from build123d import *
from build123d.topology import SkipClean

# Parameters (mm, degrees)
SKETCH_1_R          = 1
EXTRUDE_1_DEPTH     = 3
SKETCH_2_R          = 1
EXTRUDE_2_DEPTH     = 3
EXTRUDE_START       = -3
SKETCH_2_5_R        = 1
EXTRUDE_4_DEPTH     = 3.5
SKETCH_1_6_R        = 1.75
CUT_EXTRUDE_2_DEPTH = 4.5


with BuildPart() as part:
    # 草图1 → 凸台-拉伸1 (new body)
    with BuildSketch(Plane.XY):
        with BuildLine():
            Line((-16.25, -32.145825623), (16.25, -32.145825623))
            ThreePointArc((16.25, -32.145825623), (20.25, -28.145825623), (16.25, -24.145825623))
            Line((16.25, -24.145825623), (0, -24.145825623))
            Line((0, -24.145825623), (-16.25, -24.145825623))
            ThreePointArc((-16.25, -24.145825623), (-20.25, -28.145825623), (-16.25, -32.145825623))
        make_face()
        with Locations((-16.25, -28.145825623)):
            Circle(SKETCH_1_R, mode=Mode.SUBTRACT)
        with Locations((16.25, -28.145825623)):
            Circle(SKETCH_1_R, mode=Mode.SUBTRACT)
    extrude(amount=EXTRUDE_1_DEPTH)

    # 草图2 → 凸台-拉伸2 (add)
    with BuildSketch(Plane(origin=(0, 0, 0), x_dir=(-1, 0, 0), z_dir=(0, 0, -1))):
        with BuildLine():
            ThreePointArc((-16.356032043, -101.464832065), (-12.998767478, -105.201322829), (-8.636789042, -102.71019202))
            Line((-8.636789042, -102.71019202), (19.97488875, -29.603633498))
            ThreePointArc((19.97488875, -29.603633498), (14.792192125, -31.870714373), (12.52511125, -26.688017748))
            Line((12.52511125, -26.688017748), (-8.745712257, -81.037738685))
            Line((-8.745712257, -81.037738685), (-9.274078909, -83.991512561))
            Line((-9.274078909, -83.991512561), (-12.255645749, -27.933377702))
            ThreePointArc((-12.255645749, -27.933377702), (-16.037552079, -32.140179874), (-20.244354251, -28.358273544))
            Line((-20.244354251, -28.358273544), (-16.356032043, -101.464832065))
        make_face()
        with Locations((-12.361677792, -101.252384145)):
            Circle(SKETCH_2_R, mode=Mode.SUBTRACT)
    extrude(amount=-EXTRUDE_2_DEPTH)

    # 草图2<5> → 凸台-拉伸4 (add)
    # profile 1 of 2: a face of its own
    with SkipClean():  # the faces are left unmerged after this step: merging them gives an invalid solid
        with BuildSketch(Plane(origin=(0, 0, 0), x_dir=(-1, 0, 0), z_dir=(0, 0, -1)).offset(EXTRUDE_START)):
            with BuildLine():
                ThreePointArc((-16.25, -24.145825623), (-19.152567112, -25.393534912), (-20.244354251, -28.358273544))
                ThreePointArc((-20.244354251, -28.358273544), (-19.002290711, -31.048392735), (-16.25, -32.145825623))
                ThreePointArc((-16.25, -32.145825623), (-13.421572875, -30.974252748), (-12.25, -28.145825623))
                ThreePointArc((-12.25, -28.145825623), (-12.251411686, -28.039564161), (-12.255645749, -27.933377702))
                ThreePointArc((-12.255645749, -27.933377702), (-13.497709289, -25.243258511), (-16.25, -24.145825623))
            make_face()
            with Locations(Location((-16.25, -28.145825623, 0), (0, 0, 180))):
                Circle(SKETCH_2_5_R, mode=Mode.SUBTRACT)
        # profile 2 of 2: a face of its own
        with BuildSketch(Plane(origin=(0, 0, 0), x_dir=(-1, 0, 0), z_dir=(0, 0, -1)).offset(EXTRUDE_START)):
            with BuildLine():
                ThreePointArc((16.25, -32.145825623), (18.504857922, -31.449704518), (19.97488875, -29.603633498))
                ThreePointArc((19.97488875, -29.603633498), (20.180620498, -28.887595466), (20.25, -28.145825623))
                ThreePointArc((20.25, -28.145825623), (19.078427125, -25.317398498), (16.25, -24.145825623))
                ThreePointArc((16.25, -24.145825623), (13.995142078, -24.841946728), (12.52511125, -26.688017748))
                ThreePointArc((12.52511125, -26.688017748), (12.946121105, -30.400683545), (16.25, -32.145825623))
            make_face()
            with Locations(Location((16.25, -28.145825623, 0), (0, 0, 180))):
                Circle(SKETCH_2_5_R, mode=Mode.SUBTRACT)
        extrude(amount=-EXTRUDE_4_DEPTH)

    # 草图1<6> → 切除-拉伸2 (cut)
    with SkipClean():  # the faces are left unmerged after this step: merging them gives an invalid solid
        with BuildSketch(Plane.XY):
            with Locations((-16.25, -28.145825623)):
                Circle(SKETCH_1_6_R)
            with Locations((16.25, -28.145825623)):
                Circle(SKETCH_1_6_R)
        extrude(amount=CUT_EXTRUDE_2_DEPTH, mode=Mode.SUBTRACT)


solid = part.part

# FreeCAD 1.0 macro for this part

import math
import FreeCAD as App
import Part
import Sketcher

V = App.Vector

doc = App.newDocument("Part")
body = doc.addObject("PartDesign::Body", "Body")

# Sketch on XY plane
sketch1 = doc.addObject("Sketcher::SketchObject", "Sketch")
body.addObject(sketch1)
sketch1.AttachmentSupport = (doc.XY_Plane, [""])
sketch1.MapMode = "FlatFace"
sketch1.addGeometry([
    Part.LineSegment(V(-16.2, -32.1, 0), V(16.2, -32.1, 0)),  # 0
    Part.ArcOfCircle(Part.Circle(V(16.2, -28.1, 0), V(0, 0, 1), 4), math.radians(-90), math.radians(90)),  # 1
    Part.LineSegment(V(16.2, -24.1, 0), V(-16.2, -24.1, 0)),  # 2
    Part.ArcOfCircle(Part.Circle(V(-16.2, -28.1, 0), V(0, 0, 1), 4), math.radians(90), math.radians(270)),  # 3
    Part.Circle(V(-16.2, -28.1, 0), V(0, 0, 1), 1),  # 4
    Part.Circle(V(16.2, -28.1, 0), V(0, 0, 1), 1),  # 5
], False)
sketch1.addConstraint([
    Sketcher.Constraint("Tangent", 0, 2, 1, 1),
    Sketcher.Constraint("Tangent", 1, 2, 2, 1),
    Sketcher.Constraint("Tangent", 2, 2, 3, 1),
    Sketcher.Constraint("Tangent", 3, 2, 0, 1),
    Sketcher.Constraint("Horizontal", 0),
    Sketcher.Constraint("Horizontal", 2),
    Sketcher.Constraint("Coincident", 4, 3, 3, 3),
    Sketcher.Constraint("Coincident", 5, 3, 1, 3),
    Sketcher.Constraint("Equal", 4, 5),
    Sketcher.Constraint("Diameter", 4, 2.0),
    Sketcher.Constraint("Radius", 1, 4.0),
    Sketcher.Constraint("DistanceX", 0, 1, 0, 2, 32.5),
    Sketcher.Constraint("DistanceX", -1, 1, 1, 3, 16.25),
    Sketcher.Constraint("DistanceY", 1, 3, -1, 1, 28.145826),
])
pad1 = doc.addObject("PartDesign::Pad", "Pad")
body.addObject(pad1)
pad1.Profile = sketch1
pad1.Length = 3

# Sketch on XY plane
sketch2 = doc.addObject("Sketcher::SketchObject", "Sketch001")
body.addObject(sketch2)
sketch2.AttachmentSupport = (doc.XY_Plane, [""])
sketch2.MapMode = "FlatFace"
sketch2.addGeometry([
    Part.ArcOfCircle(Part.Circle(V(12.4, -101.3, 0), V(0, 0, 1), 4), math.radians(-159), math.radians(-3)),  # 0
    Part.LineSegment(V(8.6, -102.7, 0), V(-20, -29.6, 0)),  # 1
    Part.ArcOfCircle(Part.Circle(V(-16.2, -28.1, 0), V(0, 0, 1), 4), math.radians(-159), math.radians(21)),  # 2
    Part.LineSegment(V(-12.5, -26.7, 0), V(8.7, -81, 0)),  # 3
    Part.LineSegment(V(8.7, -81, 0), V(9.3, -84, 0)),  # 4
    Part.LineSegment(V(9.3, -84, 0), V(12.3, -27.9, 0)),  # 5
    Part.ArcOfCircle(Part.Circle(V(16.2, -28.1, 0), V(0, 0, 1), 4), math.radians(177), math.radians(357)),  # 6
    Part.LineSegment(V(20.2, -28.4, 0), V(16.4, -101.5, 0)),  # 7
    Part.Circle(V(12.4, -101.3, 0), V(0, 0, 1), 1),  # 8
], False)
sketch2.addConstraint([
    Sketcher.Constraint("Tangent", 0, 1, 1, 1),
    Sketcher.Constraint("Tangent", 1, 2, 2, 1),
    Sketcher.Constraint("Tangent", 2, 2, 3, 1),
    Sketcher.Constraint("Coincident", 3, 2, 4, 1),
    Sketcher.Constraint("Coincident", 4, 2, 5, 1),
    Sketcher.Constraint("Tangent", 5, 2, 6, 1),
    Sketcher.Constraint("Tangent", 6, 2, 7, 1),
    Sketcher.Constraint("Tangent", 7, 2, 0, 2),
    Sketcher.Constraint("Coincident", 8, 3, 0, 3),
    Sketcher.Constraint("Equal", 0, 2),
    Sketcher.Constraint("Equal", 2, 6),
    Sketcher.Constraint("Symmetric", 2, 3, 6, 3, -2),
    Sketcher.Constraint("Parallel", 1, 3),
    Sketcher.Constraint("Parallel", 5, 7),
    Sketcher.Constraint("Diameter", 8, 2.0),
    Sketcher.Constraint("Radius", 0, 4.0),
    Sketcher.Constraint("DistanceX", 2, 3, 6, 3, 32.5),
    Sketcher.Constraint("DistanceX", 4, 2, 0, 3, 3.087599),
    Sketcher.Constraint("Distance", 1, 78.506032),
    Sketcher.Constraint("Distance", 3, 58.36386),
    Sketcher.Constraint("Distance", 4, 3.000658),
    Sketcher.Constraint("DistanceY", 3, 2, -1, 1, 81.037739),
])
pad2 = doc.addObject("PartDesign::Pad", "Pad001")
body.addObject(pad2)
pad2.Profile = sketch2
pad2.Length = 3

# Sketch on XY plane
sketch3 = doc.addObject("Sketcher::SketchObject", "Sketch002")
body.addObject(sketch3)
sketch3.AttachmentSupport = (doc.XY_Plane, [""])
sketch3.MapMode = "FlatFace"
sketch3.AttachmentOffset = App.Placement(V(0, 0, 3), App.Rotation())
sketch3.addGeometry([
    Part.ArcOfCircle(Part.Circle(V(16.25, -28.15, 0), V(0, 0, 1), 4), math.radians(-3), math.radians(90)),  # 0
    Part.ArcOfCircle(Part.Circle(V(16.25, -28.15, 0), V(0, 0, 1), 4), math.radians(-90), math.radians(-3)),  # 1
    Part.ArcOfCircle(Part.Circle(V(16.25, -28.15, 0), V(0, 0, 1), 4), math.radians(180), math.radians(270)),  # 2
    Part.ArcOfCircle(Part.Circle(V(16.25, -28.15, 0), V(0, 0, 1), 4), math.radians(176.96), math.radians(180)),  # 3
    Part.ArcOfCircle(Part.Circle(V(16.25, -28.15, 0), V(0, 0, 1), 4), math.radians(90), math.radians(177)),  # 4
    Part.Circle(V(16.25, -28.15, 0), V(0, 0, 1), 1),  # 5
    Part.ArcOfCircle(Part.Circle(V(-16.25, -28.15, 0), V(0, 0, 1), 4), math.radians(-159), math.radians(-90)),  # 6
    Part.ArcOfCircle(Part.Circle(V(-16.25, -28.15, 0), V(0, 0, 1), 4), math.radians(-180), math.radians(-159)),  # 7
    Part.ArcOfCircle(Part.Circle(V(-16.25, -28.15, 0), V(0, 0, 1), 4), math.radians(90), math.radians(180)),  # 8
    Part.ArcOfCircle(Part.Circle(V(-16.25, -28.15, 0), V(0, 0, 1), 4), math.radians(21), math.radians(90)),  # 9
    Part.ArcOfCircle(Part.Circle(V(-16.25, -28.15, 0), V(0, 0, 1), 4), math.radians(-90), math.radians(21)),  # 10
    Part.Circle(V(-16.25, -28.15, 0), V(0, 0, 1), 1),  # 11
], False)
sketch3.addConstraint([
    Sketcher.Constraint("Tangent", 0, 1, 1, 2),
    Sketcher.Constraint("Tangent", 1, 1, 2, 2),
    Sketcher.Constraint("Tangent", 2, 1, 3, 2),
    Sketcher.Constraint("Tangent", 3, 1, 4, 2),
    Sketcher.Constraint("Tangent", 4, 1, 0, 2),
    Sketcher.Constraint("Tangent", 6, 1, 7, 2),
    Sketcher.Constraint("Tangent", 7, 1, 8, 2),
    Sketcher.Constraint("Tangent", 8, 1, 9, 2),
    Sketcher.Constraint("Tangent", 9, 1, 10, 2),
    Sketcher.Constraint("Tangent", 10, 1, 6, 2),
    Sketcher.Constraint("Coincident", 2, 3, 0, 3),
    Sketcher.Constraint("Coincident", 5, 3, 0, 3),
    Sketcher.Constraint("Coincident", 8, 3, 6, 3),
    Sketcher.Constraint("Coincident", 11, 3, 6, 3),
    Sketcher.Constraint("Equal", 4, 6),
    Sketcher.Constraint("Equal", 5, 11),
    Sketcher.Constraint("Symmetric", 0, 3, 6, 3, -2),
    Sketcher.Constraint("Horizontal", 11, 3, 2, 1),
    Sketcher.Constraint("Horizontal", 2, 1, 7, 1),
    Sketcher.Constraint("Vertical", 5, 3, 1, 1),
    Sketcher.Constraint("Vertical", 1, 1, 4, 1),
    Sketcher.Constraint("Vertical", 11, 3, 8, 1),
    Sketcher.Constraint("Vertical", 8, 1, 10, 1),
    Sketcher.Constraint("Diameter", 5, 2.0),
    Sketcher.Constraint("Radius", 0, 4.0),
    Sketcher.Constraint("DistanceX", 6, 3, 3, 3, 32.499999),
    Sketcher.Constraint("DistanceX", 6, 1, -1, 1, 19.974889),
    Sketcher.Constraint("DistanceX", 9, 1, -1, 1, 12.525111),
    Sketcher.Constraint("DistanceY", 0, 3, -1, 1, 28.145826),
    Sketcher.Constraint("DistanceX", -1, 1, 0, 1, 20.244354),
    Sketcher.Constraint("DistanceX", -1, 1, 3, 1, 12.255646),
])
pad3 = doc.addObject("PartDesign::Pad", "Pad002")
body.addObject(pad3)
pad3.Profile = sketch3
pad3.Length = 3.5

# Sketch on XY plane
sketch4 = doc.addObject("Sketcher::SketchObject", "Sketch003")
body.addObject(sketch4)
sketch4.AttachmentSupport = (doc.XY_Plane, [""])
sketch4.MapMode = "FlatFace"
sketch4.addGeometry([
    Part.Circle(V(-16.2, -28.1, 0), V(0, 0, 1), 1.8),
    Part.Circle(V(16.2, -28.1, 0), V(0, 0, 1), 1.8),
], False)
sketch4.addConstraint([
    Sketcher.Constraint("Equal", 0, 1),
    Sketcher.Constraint("Symmetric", 0, 3, 1, 3, -2),
    Sketcher.Constraint("Diameter", 0, 3.5),
    Sketcher.Constraint("DistanceX", 0, 3, 1, 3, 32.5),
    Sketcher.Constraint("DistanceY", 0, 3, -1, 1, 28.145826),
])
pocket1 = doc.addObject("PartDesign::Pocket", "Pocket")
body.addObject(pocket1)
pocket1.Profile = sketch4
pocket1.Length = 4.5
pocket1.Reversed = True

doc.recompute()
